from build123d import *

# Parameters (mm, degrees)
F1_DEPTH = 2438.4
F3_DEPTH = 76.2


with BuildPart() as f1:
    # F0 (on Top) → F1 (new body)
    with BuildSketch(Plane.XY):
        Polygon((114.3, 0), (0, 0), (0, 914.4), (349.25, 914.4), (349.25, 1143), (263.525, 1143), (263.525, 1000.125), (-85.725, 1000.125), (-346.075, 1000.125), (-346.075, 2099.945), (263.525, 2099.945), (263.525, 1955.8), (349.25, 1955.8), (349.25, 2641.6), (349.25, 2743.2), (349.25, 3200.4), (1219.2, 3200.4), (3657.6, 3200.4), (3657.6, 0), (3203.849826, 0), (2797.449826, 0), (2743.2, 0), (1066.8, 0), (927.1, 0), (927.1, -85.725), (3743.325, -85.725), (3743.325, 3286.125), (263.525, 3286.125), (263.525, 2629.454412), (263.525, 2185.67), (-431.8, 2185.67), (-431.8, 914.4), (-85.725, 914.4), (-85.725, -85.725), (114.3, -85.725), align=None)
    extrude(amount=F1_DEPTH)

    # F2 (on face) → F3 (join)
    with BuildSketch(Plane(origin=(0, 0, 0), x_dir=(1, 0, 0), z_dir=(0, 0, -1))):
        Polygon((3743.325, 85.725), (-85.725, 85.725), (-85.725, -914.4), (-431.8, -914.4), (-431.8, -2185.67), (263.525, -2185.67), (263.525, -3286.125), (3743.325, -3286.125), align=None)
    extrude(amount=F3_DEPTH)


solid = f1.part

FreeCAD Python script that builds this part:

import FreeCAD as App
import Part
import Sketcher
from FreeCAD import Vector
Q = App.Units.Quantity

doc = App.newDocument("Part")
params = doc.addObject("Spreadsheet::Sheet", "Params")
for row, (alias, value) in enumerate([
    ("sketch1_width", "24 in"),
    ("sketch1_width2", "137 in"),
    ("sketch1_height", "36 in"),
    ("sketch1_height2", "9 in"),
    ("sketch1_height3", "49 in"),
    ("pad1_length", "96 in"),
    ("sketch2_width", "137 in"),
    ("sketch2_width2", "150.75 in"),
    ("sketch2_height", "50.05 in"),
    ("sketch2_height2", "132.75 in"),
    ("sketch2_width3", "13.625 in"),
    ("pad2_length", "3 in"),
], start=1):
    params.set(f"A{row}", alias)
    params.set(f"B{row}", "=" + value)
    params.setAlias(f"B{row}", alias)

body = doc.addObject("PartDesign::Body", "Body")

# Sketch on XY plane
sketch1 = doc.addObject("Sketcher::SketchObject", "Sketch")
body.addObject(sketch1)
sketch1.AttachmentSupport = (doc.XY_Plane, [""])
sketch1.MapMode = "FlatFace"
sketch1.addGeometry([
    Part.LineSegment(Vector(114.3, 0, 0), Vector(0, 0, 0)),  # 0
    Part.LineSegment(Vector(0, 0, 0), Vector(0, 914.4, 0)),  # 1
    Part.LineSegment(Vector(0, 914.4, 0), Vector(349.25, 914.4, 0)),  # 2
    Part.LineSegment(Vector(349.25, 914.4, 0), Vector(349.25, 1143, 0)),  # 3
    Part.LineSegment(Vector(349.25, 1143, 0), Vector(263.525, 1143, 0)),  # 4
    Part.LineSegment(Vector(263.525, 1143, 0), Vector(263.525, 1000.125, 0)),  # 5
    Part.LineSegment(Vector(263.525, 1000.125, 0), Vector(-346.075, 1000.125, 0)),  # 6
    Part.LineSegment(Vector(-346.075, 1000.125, 0), Vector(-346.075, 2099.945, 0)),  # 7
    Part.LineSegment(Vector(-346.075, 2099.945, 0), Vector(263.525, 2099.945, 0)),  # 8
    Part.LineSegment(Vector(263.525, 2099.945, 0), Vector(263.525, 1955.8, 0)),  # 9
    Part.LineSegment(Vector(263.525, 1955.8, 0), Vector(349.25, 1955.8, 0)),  # 10
    Part.LineSegment(Vector(349.25, 1955.8, 0), Vector(349.25, 3200.4, 0)),  # 11
    Part.LineSegment(Vector(349.25, 3200.4, 0), Vector(3657.6, 3200.4, 0)),  # 12
    Part.LineSegment(Vector(3657.6, 3200.4, 0), Vector(3657.6, 0, 0)),  # 13
    Part.LineSegment(Vector(3657.6, 0, 0), Vector(927.1, 0, 0)),  # 14
    Part.LineSegment(Vector(927.1, 0, 0), Vector(927.1, -85.725, 0)),  # 15
    Part.LineSegment(Vector(927.1, -85.725, 0), Vector(3743.325, -85.725, 0)),  # 16
    Part.LineSegment(Vector(3743.325, -85.725, 0), Vector(3743.325, 3286.125, 0)),  # 17
    Part.LineSegment(Vector(3743.325, 3286.125, 0), Vector(263.525, 3286.125, 0)),  # 18
    Part.LineSegment(Vector(263.525, 3286.125, 0), Vector(263.525, 2185.67, 0)),  # 19
    Part.LineSegment(Vector(263.525, 2185.67, 0), Vector(-431.8, 2185.67, 0)),  # 20
    Part.LineSegment(Vector(-431.8, 2185.67, 0), Vector(-431.8, 914.4, 0)),  # 21
    Part.LineSegment(Vector(-431.8, 914.4, 0), Vector(-85.725, 914.4, 0)),  # 22
    Part.LineSegment(Vector(-85.725, 914.4, 0), Vector(-85.725, -85.725, 0)),  # 23
    Part.LineSegment(Vector(-85.725, -85.725, 0), Vector(114.3, -85.725, 0)),  # 24
    Part.LineSegment(Vector(114.3, -85.725, 0), Vector(114.3, 0, 0)),  # 25
], False)
sketch1.addConstraint([
    Sketcher.Constraint("Coincident", 0, 2, 1, 1),
    Sketcher.Constraint("Coincident", 1, 2, 2, 1),
    Sketcher.Constraint("Coincident", 2, 2, 3, 1),
    Sketcher.Constraint("Coincident", 3, 2, 4, 1),
    Sketcher.Constraint("Coincident", 4, 2, 5, 1),
    Sketcher.Constraint("Coincident", 5, 2, 6, 1),
    Sketcher.Constraint("Coincident", 6, 2, 7, 1),
    Sketcher.Constraint("Coincident", 7, 2, 8, 1),
    Sketcher.Constraint("Coincident", 8, 2, 9, 1),
    Sketcher.Constraint("Coincident", 9, 2, 10, 1),
    Sketcher.Constraint("Coincident", 10, 2, 11, 1),
    Sketcher.Constraint("Coincident", 11, 2, 12, 1),
    Sketcher.Constraint("Coincident", 12, 2, 13, 1),
    Sketcher.Constraint("Coincident", 13, 2, 14, 1),
    Sketcher.Constraint("Coincident", 14, 2, 15, 1),
    Sketcher.Constraint("Coincident", 15, 2, 16, 1),
    Sketcher.Constraint("Coincident", 16, 2, 17, 1),
    Sketcher.Constraint("Coincident", 17, 2, 18, 1),
    Sketcher.Constraint("Coincident", 18, 2, 19, 1),
    Sketcher.Constraint("Coincident", 19, 2, 20, 1),
    Sketcher.Constraint("Coincident", 20, 2, 21, 1),
    Sketcher.Constraint("Coincident", 21, 2, 22, 1),
    Sketcher.Constraint("Coincident", 22, 2, 23, 1),
    Sketcher.Constraint("Coincident", 23, 2, 24, 1),
    Sketcher.Constraint("Coincident", 24, 2, 25, 1),
    Sketcher.Constraint("Coincident", 25, 2, 0, 1),
    Sketcher.Constraint("Horizontal", 0),
    Sketcher.Constraint("Vertical", 1),
    Sketcher.Constraint("Horizontal", 2),
    Sketcher.Constraint("Vertical", 3),
    Sketcher.Constraint("Horizontal", 4),
    Sketcher.Constraint("Vertical", 5),
    Sketcher.Constraint("Horizontal", 6),
    Sketcher.Constraint("Vertical", 7),
    Sketcher.Constraint("Horizontal", 8),
    Sketcher.Constraint("Vertical", 9),
    Sketcher.Constraint("Horizontal", 10),
    Sketcher.Constraint("Vertical", 11),
    Sketcher.Constraint("Horizontal", 12),
    Sketcher.Constraint("Vertical", 13),
    Sketcher.Constraint("Horizontal", 14),
    Sketcher.Constraint("Vertical", 15),
    Sketcher.Constraint("Horizontal", 16),
    Sketcher.Constraint("Vertical", 17),
    Sketcher.Constraint("Horizontal", 18),
    Sketcher.Constraint("Vertical", 19),
    Sketcher.Constraint("Horizontal", 20),
    Sketcher.Constraint("Vertical", 21),
    Sketcher.Constraint("Horizontal", 22),
    Sketcher.Constraint("Vertical", 23),
    Sketcher.Constraint("Horizontal", 24),
    Sketcher.Constraint("Vertical", 25),
    Sketcher.Constraint("Coincident", 0, 2, -1, 1),
    Sketcher.Constraint("PointOnObject", 13, 2, -1),
    Sketcher.Constraint("Horizontal", 2, 2, 21, 2),
    Sketcher.Constraint("Horizontal", 16, 2, 23, 2),
    Sketcher.Constraint("Vertical", 5, 2, 8, 2),
    Sketcher.Constraint("Vertical", 3, 2, 10, 2),
    Sketcher.Constraint("Vertical", 9, 2, 18, 2),
    Sketcher.Constraint("Equal", 10, 15),
    Sketcher.Constraint("DistanceX", 6, 2, 6, 1, Q("24 in")),
    Sketcher.Constraint("DistanceX", 18, 2, 18, 1, Q("137 in")),
    Sketcher.Constraint("DistanceY", 1, 1, 1, 2, Q("36 in")),
    Sketcher.Constraint("DistanceY", 3, 1, 3, 2, Q("9 in")),
    Sketcher.Constraint("DistanceY", 11, 1, 11, 2, Q("49 in")),
    Sketcher.Constraint("DistanceY", 13, 2, 13, 1, Q("126 in")),
    Sketcher.Constraint("DistanceX", 0, 2, 0, 1, Q("4.5 in")),
    Sketcher.Constraint("DistanceX", 14, 2, 14, 1, Q("107.5 in")),
    Sketcher.Constraint("DistanceY", 7, 1, 7, 2, Q("43.3 in")),
    Sketcher.Constraint("DistanceX", -1, 1, 12, 2, Q("144 in")),
    Sketcher.Constraint("DistanceX", 20, 2, -1, 1, Q("17 in")),
    Sketcher.Constraint("DistanceX", 2, 1, 2, 2, Q("13.75 in")),
    Sketcher.Constraint("DistanceY", 17, 1, 17, 2, Q("132.75 in")),
    Sketcher.Constraint("DistanceY", 21, 2, 21, 1, Q("50.05 in")),
    Sketcher.Constraint("DistanceY", 8, 2, 18, 2, Q("46.7 in")),
    Sketcher.Constraint("DistanceX", 4, 2, 4, 1, Q("3.375 in")),
    Sketcher.Constraint("DistanceX", 22, 1, 22, 2, Q("13.625 in")),
])
sketch1.setExpression("Constraints[60]", "Params.sketch1_width")
sketch1.setExpression("Constraints[61]", "Params.sketch1_width2")
sketch1.setExpression("Constraints[62]", "Params.sketch1_height")
sketch1.setExpression("Constraints[63]", "Params.sketch1_height2")
sketch1.setExpression("Constraints[64]", "Params.sketch1_height3")
pad1 = doc.addObject("PartDesign::Pad", "Pad")
body.addObject(pad1)
pad1.Profile = sketch1
pad1.setExpression("Length", "Params.pad1_length")

# Sketch on XY plane
sketch2 = doc.addObject("Sketcher::SketchObject", "Sketch001")
body.addObject(sketch2)
sketch2.AttachmentSupport = (doc.XY_Plane, [""])
sketch2.MapMode = "FlatFace"
sketch2.addGeometry([
    Part.LineSegment(Vector(3743.325, -85.725, 0), Vector(-85.725, -85.725, 0)),  # 0
    Part.LineSegment(Vector(-85.725, -85.725, 0), Vector(-85.725, 914.4, 0)),  # 1
    Part.LineSegment(Vector(-85.725, 914.4, 0), Vector(-431.8, 914.4, 0)),  # 2
    Part.LineSegment(Vector(-431.8, 914.4, 0), Vector(-431.8, 2185.67, 0)),  # 3
    Part.LineSegment(Vector(-431.8, 2185.67, 0), Vector(263.525, 2185.67, 0)),  # 4
    Part.LineSegment(Vector(263.525, 2185.67, 0), Vector(263.525, 3286.125, 0)),  # 5
    Part.LineSegment(Vector(263.525, 3286.125, 0), Vector(3743.325, 3286.125, 0)),  # 6
    Part.LineSegment(Vector(3743.325, 3286.125, 0), Vector(3743.325, -85.725, 0)),  # 7
], False)
sketch2.addConstraint([
    Sketcher.Constraint("Coincident", 0, 2, 1, 1),
    Sketcher.Constraint("Coincident", 1, 2, 2, 1),
    Sketcher.Constraint("Coincident", 2, 2, 3, 1),
    Sketcher.Constraint("Coincident", 3, 2, 4, 1),
    Sketcher.Constraint("Coincident", 4, 2, 5, 1),
    Sketcher.Constraint("Coincident", 5, 2, 6, 1),
    Sketcher.Constraint("Coincident", 6, 2, 7, 1),
    Sketcher.Constraint("Coincident", 7, 2, 0, 1),
    Sketcher.Constraint("Horizontal", 0),
    Sketcher.Constraint("Vertical", 1),
    Sketcher.Constraint("Horizontal", 2),
    Sketcher.Constraint("Vertical", 3),
    Sketcher.Constraint("Horizontal", 4),
    Sketcher.Constraint("Vertical", 5),
    Sketcher.Constraint("Horizontal", 6),
    Sketcher.Constraint("Vertical", 7),
    Sketcher.Constraint("DistanceX", 6, 1, 6, 2, Q("137 in")),
    Sketcher.Constraint("DistanceY", -1, 1, 1, 2, Q("36 in")),
    Sketcher.Constraint("DistanceX", 2, 2, -1, 1, Q("17 in")),
    Sketcher.Constraint("DistanceX", 0, 2, 0, 1, Q("150.75 in")),
    Sketcher.Constraint("DistanceY", 3, 1, 3, 2, Q("50.05 in")),
    Sketcher.Constraint("DistanceY", 7, 2, 7, 1, Q("132.75 in")),
    Sketcher.Constraint("DistanceX", 2, 2, 2, 1, Q("13.625 in")),
    Sketcher.Constraint("DistanceY", 1, 1, 1, 2, Q("39.375 in")),
])
sketch2.setExpression("Constraints[16]", "Params.sketch2_width")
sketch2.setExpression("Constraints[19]", "Params.sketch2_width2")
sketch2.setExpression("Constraints[20]", "Params.sketch2_height")
sketch2.setExpression("Constraints[21]", "Params.sketch2_height2")
sketch2.setExpression("Constraints[22]", "Params.sketch2_width3")
pad2 = doc.addObject("PartDesign::Pad", "Pad001")
body.addObject(pad2)
pad2.Profile = sketch2
pad2.setExpression("Length", "Params.pad2_length")
pad2.Reversed = True

doc.recompute()
